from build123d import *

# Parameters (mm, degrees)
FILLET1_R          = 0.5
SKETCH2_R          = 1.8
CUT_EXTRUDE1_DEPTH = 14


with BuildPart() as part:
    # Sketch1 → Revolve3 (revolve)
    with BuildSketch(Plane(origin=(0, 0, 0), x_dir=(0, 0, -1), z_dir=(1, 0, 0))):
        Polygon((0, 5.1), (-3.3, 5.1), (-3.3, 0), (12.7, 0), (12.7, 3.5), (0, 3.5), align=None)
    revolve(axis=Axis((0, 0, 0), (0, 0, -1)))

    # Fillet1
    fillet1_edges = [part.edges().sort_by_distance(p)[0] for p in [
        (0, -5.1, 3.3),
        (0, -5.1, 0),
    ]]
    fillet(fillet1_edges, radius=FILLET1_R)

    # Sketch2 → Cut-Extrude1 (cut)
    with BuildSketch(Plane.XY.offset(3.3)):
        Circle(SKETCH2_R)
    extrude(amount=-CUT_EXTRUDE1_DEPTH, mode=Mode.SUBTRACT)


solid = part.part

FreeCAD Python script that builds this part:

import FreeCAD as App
import Part
import Sketcher
Q = App.Units.Quantity


def edges_at(feature, points):
    """Names of the edges that pass closest to the given points."""
    edges = feature.Shape.Edges
    near = lambda p: min(range(len(edges)), key=lambda i: edges[i].distToShape(Part.Vertex(*p))[0])
    return sorted({f"Edge{near(p) + 1}" for p in points})

doc = App.newDocument("Part")
body = doc.addObject("PartDesign::Body", "Body")

sketch1 = body.newObject("Sketcher::SketchObject", "Sketch")
sketch1.AttachmentSupport = (doc.getObject("YZ_Plane"), [""])
sketch1.MapMode = "FlatFace"
sketch1.addGeometry([
    Part.LineSegment(App.Vector(5.1, 0, 0), App.Vector(5.1, 3.3, 0)),
    Part.LineSegment(App.Vector(5.1, 3.3, 0), App.Vector(0, 3.3, 0)),
    Part.LineSegment(App.Vector(0, 3.3, 0), App.Vector(0, -12.7, 0)),
    Part.LineSegment(App.Vector(0, -12.7, 0), App.Vector(3.5, -12.7, 0)),
    Part.LineSegment(App.Vector(3.5, -12.7, 0), App.Vector(3.5, 0, 0)),
    Part.LineSegment(App.Vector(3.5, 0, 0), App.Vector(5.1, 0, 0)),
], False)
sketch1.addConstraint([
    Sketcher.Constraint("Coincident", 0, 2, 1, 1),
    Sketcher.Constraint("Coincident", 1, 2, 2, 1),
    Sketcher.Constraint("Coincident", 2, 2, 3, 1),
    Sketcher.Constraint("Coincident", 3, 2, 4, 1),
    Sketcher.Constraint("Coincident", 4, 2, 5, 1),
    Sketcher.Constraint("Coincident", 5, 2, 0, 1),
    Sketcher.Constraint("Vertical", 0),
    Sketcher.Constraint("Horizontal", 1),
    Sketcher.Constraint("Vertical", 2),
    Sketcher.Constraint("Horizontal", 3),
    Sketcher.Constraint("Vertical", 4),
    Sketcher.Constraint("Horizontal", 5),
    Sketcher.Constraint("PointOnObject", 1, 2, -2),
    Sketcher.Constraint("PointOnObject", 4, 2, -1),
    Sketcher.Constraint("DistanceY", 2, 2, 2, 1, Q("16 mm")),
    Sketcher.Constraint("DistanceX", 1, 2, 1, 1, Q("5.1 mm")),
    Sketcher.Constraint("DistanceX", 3, 1, 3, 2, Q("3.5 mm")),
    Sketcher.Constraint("DistanceY", 0, 1, 0, 2, Q("3.3 mm")),
])
revolution = body.newObject("PartDesign::Revolution", "Revolution")
revolution.Profile = sketch1
revolution.ReferenceAxis = (sketch1, ["V_Axis"])
revolution.Angle = 360
doc.recompute()

fillet = body.newObject("PartDesign::Fillet", "Fillet")
fillet.Base = (revolution, edges_at(revolution, [(0, -5.1, 3.3), (0, -5.1, 0)]))
fillet.Radius = 0.5

sketch2 = body.newObject("Sketcher::SketchObject", "Sketch001")
sketch2.AttachmentSupport = (doc.getObject("XY_Plane"), [""])
sketch2.MapMode = "FlatFace"
sketch2.AttachmentOffset = App.Placement(App.Vector(0, 0, 3.3), App.Rotation())
sketch2.addGeometry(Part.Circle(App.Vector(0, 0, 0), App.Vector(0, 0, 1), 1.8), False)
sketch2.addConstraint([
    Sketcher.Constraint("Coincident", 0, 3, -1, 1),
    Sketcher.Constraint("Diameter", 0, Q("3.6 mm")),
])
pocket1 = body.newObject("PartDesign::Pocket", "Pocket")
pocket1.Profile = sketch2
pocket1.Length = 14

doc.recompute()
